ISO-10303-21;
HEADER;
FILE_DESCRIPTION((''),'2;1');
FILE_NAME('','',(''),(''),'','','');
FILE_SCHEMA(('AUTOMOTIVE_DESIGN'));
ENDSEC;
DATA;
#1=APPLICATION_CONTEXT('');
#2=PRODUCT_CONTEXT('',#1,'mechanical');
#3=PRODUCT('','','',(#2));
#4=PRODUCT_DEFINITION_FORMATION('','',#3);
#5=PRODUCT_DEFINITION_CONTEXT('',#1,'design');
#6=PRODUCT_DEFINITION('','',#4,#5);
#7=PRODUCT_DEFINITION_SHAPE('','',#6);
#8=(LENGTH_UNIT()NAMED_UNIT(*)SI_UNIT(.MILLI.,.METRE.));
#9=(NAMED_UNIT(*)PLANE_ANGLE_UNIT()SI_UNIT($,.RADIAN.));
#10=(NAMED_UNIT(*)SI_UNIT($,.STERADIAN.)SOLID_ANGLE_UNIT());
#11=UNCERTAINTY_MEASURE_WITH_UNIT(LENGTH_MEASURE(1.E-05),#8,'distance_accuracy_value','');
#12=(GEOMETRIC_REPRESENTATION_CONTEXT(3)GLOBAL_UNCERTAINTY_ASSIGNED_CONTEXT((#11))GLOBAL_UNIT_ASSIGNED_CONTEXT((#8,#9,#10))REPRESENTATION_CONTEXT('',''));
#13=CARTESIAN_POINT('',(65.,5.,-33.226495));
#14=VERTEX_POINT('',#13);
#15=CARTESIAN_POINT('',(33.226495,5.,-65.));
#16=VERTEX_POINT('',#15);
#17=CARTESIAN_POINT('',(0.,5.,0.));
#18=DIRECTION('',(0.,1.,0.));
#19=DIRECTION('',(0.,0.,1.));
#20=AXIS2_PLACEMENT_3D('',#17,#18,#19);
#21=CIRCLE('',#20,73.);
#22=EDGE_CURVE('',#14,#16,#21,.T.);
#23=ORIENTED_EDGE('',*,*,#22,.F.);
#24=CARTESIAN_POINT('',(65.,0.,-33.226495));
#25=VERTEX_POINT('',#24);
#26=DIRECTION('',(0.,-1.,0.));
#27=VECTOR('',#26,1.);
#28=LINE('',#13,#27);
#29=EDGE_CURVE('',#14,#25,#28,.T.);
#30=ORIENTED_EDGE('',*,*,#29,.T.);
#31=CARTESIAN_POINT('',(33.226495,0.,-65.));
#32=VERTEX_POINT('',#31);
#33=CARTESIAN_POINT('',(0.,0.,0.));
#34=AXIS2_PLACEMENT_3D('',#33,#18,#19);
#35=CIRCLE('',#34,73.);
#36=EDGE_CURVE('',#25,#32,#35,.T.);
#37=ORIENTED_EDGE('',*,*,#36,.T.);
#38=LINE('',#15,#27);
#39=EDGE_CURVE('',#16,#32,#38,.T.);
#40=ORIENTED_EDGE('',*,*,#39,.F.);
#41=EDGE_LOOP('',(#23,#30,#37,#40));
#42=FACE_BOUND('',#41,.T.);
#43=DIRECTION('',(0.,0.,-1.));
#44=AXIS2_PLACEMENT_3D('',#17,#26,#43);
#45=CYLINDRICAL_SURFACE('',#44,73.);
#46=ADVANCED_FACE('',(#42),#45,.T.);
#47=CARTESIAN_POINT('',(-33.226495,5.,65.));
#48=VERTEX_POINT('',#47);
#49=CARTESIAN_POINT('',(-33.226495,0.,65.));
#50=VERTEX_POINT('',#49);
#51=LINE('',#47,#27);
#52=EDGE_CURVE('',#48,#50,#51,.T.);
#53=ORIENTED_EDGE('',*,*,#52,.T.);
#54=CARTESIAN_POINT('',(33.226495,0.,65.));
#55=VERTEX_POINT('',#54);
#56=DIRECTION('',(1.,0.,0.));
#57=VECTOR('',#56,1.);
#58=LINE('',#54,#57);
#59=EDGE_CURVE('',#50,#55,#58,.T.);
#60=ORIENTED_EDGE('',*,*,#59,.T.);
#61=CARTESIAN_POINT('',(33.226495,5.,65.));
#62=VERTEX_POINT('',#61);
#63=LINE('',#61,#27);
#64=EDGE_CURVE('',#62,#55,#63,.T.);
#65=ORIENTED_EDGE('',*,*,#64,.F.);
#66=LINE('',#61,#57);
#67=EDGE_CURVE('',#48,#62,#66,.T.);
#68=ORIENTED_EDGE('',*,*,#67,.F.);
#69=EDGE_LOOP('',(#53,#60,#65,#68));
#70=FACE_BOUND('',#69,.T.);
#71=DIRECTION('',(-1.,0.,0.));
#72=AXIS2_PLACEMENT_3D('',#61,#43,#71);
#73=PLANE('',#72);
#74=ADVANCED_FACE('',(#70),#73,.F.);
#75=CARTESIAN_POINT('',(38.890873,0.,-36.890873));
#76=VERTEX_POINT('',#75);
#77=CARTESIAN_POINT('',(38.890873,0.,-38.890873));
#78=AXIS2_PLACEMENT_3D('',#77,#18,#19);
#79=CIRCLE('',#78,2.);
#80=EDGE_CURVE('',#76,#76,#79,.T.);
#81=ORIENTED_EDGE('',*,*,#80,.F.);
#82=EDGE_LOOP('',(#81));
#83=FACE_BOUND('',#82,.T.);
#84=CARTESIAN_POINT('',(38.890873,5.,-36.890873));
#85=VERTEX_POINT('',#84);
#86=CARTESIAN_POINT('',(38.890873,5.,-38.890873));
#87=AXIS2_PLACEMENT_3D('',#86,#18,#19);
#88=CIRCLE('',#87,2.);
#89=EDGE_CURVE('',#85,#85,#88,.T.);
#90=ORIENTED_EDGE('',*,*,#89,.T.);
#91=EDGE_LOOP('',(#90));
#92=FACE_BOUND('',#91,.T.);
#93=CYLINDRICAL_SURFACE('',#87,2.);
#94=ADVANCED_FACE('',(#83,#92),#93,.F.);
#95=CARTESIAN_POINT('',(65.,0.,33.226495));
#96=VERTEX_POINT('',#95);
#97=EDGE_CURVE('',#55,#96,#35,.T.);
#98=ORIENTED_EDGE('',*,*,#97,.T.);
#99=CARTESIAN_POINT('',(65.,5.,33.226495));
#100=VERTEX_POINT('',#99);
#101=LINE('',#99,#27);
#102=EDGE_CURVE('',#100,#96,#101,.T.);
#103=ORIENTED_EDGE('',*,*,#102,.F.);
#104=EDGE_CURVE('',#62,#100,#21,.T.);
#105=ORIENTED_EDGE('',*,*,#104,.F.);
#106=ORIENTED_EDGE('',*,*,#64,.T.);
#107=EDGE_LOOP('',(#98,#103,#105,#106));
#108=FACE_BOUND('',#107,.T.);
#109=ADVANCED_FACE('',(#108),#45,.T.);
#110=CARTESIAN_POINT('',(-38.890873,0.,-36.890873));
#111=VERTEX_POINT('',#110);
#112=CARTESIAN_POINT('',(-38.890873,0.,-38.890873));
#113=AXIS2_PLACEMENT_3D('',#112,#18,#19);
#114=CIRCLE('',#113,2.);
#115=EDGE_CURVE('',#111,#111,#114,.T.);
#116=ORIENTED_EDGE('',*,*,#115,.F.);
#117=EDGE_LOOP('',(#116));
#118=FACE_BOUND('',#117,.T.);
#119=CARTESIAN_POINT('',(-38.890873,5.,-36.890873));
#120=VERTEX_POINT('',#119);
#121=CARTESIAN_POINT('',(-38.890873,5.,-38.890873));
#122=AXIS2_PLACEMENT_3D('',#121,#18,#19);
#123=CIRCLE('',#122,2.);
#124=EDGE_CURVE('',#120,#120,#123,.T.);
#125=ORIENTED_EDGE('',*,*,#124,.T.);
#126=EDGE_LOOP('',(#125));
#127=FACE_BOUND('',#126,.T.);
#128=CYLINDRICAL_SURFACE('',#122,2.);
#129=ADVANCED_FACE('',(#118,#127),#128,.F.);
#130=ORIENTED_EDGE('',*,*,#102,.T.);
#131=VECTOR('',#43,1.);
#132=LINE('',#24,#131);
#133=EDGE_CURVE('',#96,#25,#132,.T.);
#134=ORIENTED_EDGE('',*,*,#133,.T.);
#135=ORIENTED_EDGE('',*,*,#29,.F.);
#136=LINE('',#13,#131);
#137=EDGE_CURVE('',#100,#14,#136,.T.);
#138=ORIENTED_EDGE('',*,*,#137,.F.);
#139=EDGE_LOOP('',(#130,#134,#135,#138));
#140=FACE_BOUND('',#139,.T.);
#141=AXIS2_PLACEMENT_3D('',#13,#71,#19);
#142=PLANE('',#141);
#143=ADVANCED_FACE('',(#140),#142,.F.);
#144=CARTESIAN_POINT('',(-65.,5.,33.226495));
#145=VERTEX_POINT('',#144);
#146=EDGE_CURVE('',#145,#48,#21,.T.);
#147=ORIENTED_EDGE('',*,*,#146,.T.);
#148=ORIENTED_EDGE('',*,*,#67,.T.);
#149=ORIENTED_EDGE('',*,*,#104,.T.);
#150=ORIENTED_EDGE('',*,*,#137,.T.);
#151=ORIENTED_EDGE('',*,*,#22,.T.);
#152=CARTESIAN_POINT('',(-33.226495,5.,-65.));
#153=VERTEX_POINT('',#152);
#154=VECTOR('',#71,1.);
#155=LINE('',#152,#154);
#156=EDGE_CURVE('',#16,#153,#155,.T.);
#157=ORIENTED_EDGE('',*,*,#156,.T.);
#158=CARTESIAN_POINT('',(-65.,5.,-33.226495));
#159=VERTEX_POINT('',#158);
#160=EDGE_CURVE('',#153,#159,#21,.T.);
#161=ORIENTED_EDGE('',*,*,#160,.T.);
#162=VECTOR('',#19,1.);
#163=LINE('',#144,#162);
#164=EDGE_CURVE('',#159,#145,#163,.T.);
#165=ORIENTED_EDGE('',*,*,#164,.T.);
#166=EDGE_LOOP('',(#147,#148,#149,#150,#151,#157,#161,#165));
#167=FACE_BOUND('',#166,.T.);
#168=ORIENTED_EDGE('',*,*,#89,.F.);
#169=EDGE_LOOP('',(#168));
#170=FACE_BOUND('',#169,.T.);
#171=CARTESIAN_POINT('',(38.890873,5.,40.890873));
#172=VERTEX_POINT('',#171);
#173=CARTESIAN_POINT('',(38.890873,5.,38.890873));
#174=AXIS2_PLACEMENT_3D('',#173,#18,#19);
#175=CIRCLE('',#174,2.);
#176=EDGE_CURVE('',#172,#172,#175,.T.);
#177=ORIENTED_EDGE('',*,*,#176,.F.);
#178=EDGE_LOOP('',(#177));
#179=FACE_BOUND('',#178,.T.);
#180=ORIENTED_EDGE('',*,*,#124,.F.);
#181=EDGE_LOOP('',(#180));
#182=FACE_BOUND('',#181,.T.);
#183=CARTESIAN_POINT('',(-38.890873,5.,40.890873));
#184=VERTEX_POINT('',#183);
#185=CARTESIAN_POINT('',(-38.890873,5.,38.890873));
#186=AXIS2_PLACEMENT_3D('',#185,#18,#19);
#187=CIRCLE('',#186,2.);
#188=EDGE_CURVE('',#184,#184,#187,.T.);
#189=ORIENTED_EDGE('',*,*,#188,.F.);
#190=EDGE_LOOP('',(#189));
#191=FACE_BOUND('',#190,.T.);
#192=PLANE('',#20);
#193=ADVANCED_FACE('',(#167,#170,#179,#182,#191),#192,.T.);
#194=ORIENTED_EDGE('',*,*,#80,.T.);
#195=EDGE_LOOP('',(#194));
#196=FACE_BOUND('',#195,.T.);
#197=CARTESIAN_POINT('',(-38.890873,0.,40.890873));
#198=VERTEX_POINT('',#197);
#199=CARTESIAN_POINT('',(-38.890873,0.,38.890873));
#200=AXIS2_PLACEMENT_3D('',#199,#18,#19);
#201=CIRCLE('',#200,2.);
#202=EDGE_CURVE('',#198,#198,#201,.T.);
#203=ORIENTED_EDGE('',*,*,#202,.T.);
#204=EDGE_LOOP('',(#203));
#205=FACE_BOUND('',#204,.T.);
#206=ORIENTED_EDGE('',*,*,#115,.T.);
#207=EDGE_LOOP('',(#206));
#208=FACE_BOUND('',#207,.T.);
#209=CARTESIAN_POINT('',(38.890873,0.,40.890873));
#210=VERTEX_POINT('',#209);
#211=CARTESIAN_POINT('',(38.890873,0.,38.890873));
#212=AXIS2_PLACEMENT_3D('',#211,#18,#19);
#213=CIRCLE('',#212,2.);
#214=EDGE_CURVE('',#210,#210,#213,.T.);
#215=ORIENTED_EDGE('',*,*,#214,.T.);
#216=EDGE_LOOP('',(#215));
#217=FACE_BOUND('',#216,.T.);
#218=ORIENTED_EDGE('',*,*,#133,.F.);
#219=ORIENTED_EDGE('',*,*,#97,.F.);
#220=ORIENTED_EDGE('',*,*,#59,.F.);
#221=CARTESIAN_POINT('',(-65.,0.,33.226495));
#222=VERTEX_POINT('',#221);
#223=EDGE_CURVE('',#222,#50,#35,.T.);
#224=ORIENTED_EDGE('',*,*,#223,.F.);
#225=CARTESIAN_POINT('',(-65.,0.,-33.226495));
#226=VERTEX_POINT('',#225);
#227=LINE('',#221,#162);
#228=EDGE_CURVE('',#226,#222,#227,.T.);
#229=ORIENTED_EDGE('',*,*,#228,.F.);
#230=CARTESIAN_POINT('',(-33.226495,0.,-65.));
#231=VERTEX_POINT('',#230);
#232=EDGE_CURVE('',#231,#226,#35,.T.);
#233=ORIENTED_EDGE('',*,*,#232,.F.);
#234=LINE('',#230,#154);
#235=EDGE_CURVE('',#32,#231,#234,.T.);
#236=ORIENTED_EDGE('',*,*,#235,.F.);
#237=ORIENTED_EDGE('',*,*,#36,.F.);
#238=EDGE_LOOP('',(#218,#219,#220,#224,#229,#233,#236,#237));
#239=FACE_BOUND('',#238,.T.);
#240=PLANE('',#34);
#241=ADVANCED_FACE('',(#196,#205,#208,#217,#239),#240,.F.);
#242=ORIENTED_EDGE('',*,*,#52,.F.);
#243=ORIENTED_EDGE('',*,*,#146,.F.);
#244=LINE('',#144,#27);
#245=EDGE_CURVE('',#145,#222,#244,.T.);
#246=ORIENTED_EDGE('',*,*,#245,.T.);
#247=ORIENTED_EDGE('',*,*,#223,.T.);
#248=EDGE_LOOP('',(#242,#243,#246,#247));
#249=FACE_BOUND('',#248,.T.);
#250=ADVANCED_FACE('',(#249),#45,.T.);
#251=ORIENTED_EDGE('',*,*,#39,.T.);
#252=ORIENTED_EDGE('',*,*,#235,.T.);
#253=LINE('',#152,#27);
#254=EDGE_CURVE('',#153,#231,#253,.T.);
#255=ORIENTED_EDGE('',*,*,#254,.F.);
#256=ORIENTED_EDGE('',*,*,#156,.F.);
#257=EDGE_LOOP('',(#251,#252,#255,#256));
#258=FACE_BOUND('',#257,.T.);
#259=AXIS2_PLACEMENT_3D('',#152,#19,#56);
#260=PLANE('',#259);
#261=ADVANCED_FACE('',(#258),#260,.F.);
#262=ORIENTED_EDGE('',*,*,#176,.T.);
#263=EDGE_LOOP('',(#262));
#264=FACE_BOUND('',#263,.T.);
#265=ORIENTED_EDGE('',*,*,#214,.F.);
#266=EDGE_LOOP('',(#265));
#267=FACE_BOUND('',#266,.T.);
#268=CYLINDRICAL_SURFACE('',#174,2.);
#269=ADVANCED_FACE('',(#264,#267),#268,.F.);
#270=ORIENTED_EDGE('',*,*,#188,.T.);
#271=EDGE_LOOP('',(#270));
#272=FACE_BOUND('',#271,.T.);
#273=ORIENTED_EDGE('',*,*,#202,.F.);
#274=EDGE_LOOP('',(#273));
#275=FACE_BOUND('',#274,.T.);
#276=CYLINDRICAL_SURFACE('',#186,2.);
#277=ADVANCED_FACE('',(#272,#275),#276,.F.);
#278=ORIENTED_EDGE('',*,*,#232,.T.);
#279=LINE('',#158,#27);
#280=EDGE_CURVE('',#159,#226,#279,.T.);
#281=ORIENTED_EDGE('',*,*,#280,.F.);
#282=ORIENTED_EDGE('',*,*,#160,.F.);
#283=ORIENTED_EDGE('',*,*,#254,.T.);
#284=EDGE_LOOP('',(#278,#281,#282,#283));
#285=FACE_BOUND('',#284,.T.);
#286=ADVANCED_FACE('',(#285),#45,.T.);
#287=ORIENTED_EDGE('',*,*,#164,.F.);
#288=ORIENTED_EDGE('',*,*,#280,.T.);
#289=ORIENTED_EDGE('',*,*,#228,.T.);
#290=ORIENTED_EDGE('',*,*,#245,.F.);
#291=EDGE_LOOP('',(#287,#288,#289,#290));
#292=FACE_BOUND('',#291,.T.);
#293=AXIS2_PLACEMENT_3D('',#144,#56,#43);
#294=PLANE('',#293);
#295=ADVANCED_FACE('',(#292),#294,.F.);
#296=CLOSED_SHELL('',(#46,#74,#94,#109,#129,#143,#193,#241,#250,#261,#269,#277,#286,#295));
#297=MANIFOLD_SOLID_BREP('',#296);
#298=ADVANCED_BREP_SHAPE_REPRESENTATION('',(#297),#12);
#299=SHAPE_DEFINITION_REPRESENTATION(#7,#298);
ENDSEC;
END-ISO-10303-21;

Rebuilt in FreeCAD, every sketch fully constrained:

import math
import FreeCAD as App
import Part
import Sketcher

doc = App.newDocument("Part")
body = doc.addObject("PartDesign::Body", "Body")

# Sketch on XZ plane
sketch1 = body.newObject("Sketcher::SketchObject", "Sketch")
sketch1.AttachmentSupport = (doc.getObject("XZ_Plane"), [""])
sketch1.MapMode = "FlatFace"
sketch1.addGeometry([
    Part.LineSegment(App.Vector(65, 33.226495, 0), App.Vector(65, -33.226495, 0)),  # 0
    Part.ArcOfCircle(Part.Circle(App.Vector(0, 0, 0), App.Vector(0, 0, 1), 73), math.radians(-62.924933), math.radians(-27.075067)),  # 1
    Part.LineSegment(App.Vector(33.226495, -65, 0), App.Vector(-33.226495, -65, 0)),  # 2
    Part.ArcOfCircle(Part.Circle(App.Vector(0, 0, 0), App.Vector(0, 0, 1), 73), math.radians(-152.924933), math.radians(-117.075067)),  # 3
    Part.LineSegment(App.Vector(-65, -33.226495, 0), App.Vector(-65, 33.226495, 0)),  # 4
    Part.ArcOfCircle(Part.Circle(App.Vector(0, 0, 0), App.Vector(0, 0, 1), 73), math.radians(117.075067), math.radians(152.924933)),  # 5
    Part.LineSegment(App.Vector(-33.226495, 65, 0), App.Vector(33.226495, 65, 0)),  # 6
    Part.ArcOfCircle(Part.Circle(App.Vector(0, 0, 0), App.Vector(0, 0, 1), 73), math.radians(27.075067), math.radians(62.924933)),  # 7
], False)
sketch1.addConstraint([
    Sketcher.Constraint("Coincident", 0, 2, 1, 2),
    Sketcher.Constraint("Coincident", 1, 1, 2, 1),
    Sketcher.Constraint("Coincident", 2, 2, 3, 2),
    Sketcher.Constraint("Coincident", 3, 1, 4, 1),
    Sketcher.Constraint("Coincident", 4, 2, 5, 2),
    Sketcher.Constraint("Coincident", 5, 1, 6, 1),
    Sketcher.Constraint("Coincident", 6, 2, 7, 2),
    Sketcher.Constraint("Coincident", 7, 1, 0, 1),
    Sketcher.Constraint("Vertical", 0),
    Sketcher.Constraint("Horizontal", 2),
    Sketcher.Constraint("Vertical", 4),
    Sketcher.Constraint("Horizontal", 6),
    Sketcher.Constraint("Coincident", 1, 3, -1, 1),
    Sketcher.Constraint("Coincident", 3, 3, -1, 1),
    Sketcher.Constraint("Coincident", 5, 3, -1, 1),
    Sketcher.Constraint("Coincident", 7, 3, -1, 1),
    Sketcher.Constraint("Equal", 1, 3),
    Sketcher.Constraint("Equal", 3, 5),
    Sketcher.Constraint("Equal", 5, 7),
    Sketcher.Constraint("Horizontal", 0, 2, 3, 1),
    Sketcher.Constraint("Vertical", 2, 2, 5, 1),
    Sketcher.Constraint("Equal", 6, 0),
    Sketcher.Constraint("Radius", 1, 73.0),
    Sketcher.Constraint("DistanceX", -1, 1, 0, 2, 65.0),
])
pad1 = body.newObject("PartDesign::Pad", "Pad")
pad1.Profile = sketch1
pad1.Length = 5
pad1.Reversed = True

# Sketch on XZ plane
sketch2 = body.newObject("Sketcher::SketchObject", "Sketch001")
sketch2.AttachmentSupport = (doc.getObject("XZ_Plane"), [""])
sketch2.MapMode = "FlatFace"
sketch2.AttachmentOffset = App.Placement(App.Vector(0, 0, -5), App.Rotation())
sketch2.addGeometry([
    Part.Circle(App.Vector(38.890873, -38.890873, 0), App.Vector(0, 0, 1), 2),
    Part.Circle(App.Vector(38.890873, 38.890873, 0), App.Vector(0, 0, 1), 2),
    Part.Circle(App.Vector(-38.890873, 38.890873, 0), App.Vector(0, 0, 1), 2),
    Part.Circle(App.Vector(-38.890873, -38.890873, 0), App.Vector(0, 0, 1), 2),
], False)
sketch2.addConstraint([
    Sketcher.Constraint("Equal", 0, 1),
    Sketcher.Constraint("Equal", 1, 2),
    Sketcher.Constraint("Equal", 2, 3),
    Sketcher.Constraint("Symmetric", 0, 3, 2, 3, -1, 1),
    Sketcher.Constraint("Symmetric", 1, 3, 3, 3, -1, 1),
    Sketcher.Constraint("Symmetric", 1, 3, 2, 3, -2),
    Sketcher.Constraint("Diameter", 0, 4.0),
    Sketcher.Constraint("DistanceX", -1, 1, 0, 3, 38.890873),
    Sketcher.Constraint("DistanceY", 0, 3, -1, 1, 38.890873),
])
doc.recompute()
hole = body.newObject("PartDesign::Hole", "Hole")
hole.Profile = sketch2
hole.ThreadType = "None"
hole.Diameter = 4
hole.DepthType = "ThroughAll"
hole.Reversed = True

doc.recompute()
